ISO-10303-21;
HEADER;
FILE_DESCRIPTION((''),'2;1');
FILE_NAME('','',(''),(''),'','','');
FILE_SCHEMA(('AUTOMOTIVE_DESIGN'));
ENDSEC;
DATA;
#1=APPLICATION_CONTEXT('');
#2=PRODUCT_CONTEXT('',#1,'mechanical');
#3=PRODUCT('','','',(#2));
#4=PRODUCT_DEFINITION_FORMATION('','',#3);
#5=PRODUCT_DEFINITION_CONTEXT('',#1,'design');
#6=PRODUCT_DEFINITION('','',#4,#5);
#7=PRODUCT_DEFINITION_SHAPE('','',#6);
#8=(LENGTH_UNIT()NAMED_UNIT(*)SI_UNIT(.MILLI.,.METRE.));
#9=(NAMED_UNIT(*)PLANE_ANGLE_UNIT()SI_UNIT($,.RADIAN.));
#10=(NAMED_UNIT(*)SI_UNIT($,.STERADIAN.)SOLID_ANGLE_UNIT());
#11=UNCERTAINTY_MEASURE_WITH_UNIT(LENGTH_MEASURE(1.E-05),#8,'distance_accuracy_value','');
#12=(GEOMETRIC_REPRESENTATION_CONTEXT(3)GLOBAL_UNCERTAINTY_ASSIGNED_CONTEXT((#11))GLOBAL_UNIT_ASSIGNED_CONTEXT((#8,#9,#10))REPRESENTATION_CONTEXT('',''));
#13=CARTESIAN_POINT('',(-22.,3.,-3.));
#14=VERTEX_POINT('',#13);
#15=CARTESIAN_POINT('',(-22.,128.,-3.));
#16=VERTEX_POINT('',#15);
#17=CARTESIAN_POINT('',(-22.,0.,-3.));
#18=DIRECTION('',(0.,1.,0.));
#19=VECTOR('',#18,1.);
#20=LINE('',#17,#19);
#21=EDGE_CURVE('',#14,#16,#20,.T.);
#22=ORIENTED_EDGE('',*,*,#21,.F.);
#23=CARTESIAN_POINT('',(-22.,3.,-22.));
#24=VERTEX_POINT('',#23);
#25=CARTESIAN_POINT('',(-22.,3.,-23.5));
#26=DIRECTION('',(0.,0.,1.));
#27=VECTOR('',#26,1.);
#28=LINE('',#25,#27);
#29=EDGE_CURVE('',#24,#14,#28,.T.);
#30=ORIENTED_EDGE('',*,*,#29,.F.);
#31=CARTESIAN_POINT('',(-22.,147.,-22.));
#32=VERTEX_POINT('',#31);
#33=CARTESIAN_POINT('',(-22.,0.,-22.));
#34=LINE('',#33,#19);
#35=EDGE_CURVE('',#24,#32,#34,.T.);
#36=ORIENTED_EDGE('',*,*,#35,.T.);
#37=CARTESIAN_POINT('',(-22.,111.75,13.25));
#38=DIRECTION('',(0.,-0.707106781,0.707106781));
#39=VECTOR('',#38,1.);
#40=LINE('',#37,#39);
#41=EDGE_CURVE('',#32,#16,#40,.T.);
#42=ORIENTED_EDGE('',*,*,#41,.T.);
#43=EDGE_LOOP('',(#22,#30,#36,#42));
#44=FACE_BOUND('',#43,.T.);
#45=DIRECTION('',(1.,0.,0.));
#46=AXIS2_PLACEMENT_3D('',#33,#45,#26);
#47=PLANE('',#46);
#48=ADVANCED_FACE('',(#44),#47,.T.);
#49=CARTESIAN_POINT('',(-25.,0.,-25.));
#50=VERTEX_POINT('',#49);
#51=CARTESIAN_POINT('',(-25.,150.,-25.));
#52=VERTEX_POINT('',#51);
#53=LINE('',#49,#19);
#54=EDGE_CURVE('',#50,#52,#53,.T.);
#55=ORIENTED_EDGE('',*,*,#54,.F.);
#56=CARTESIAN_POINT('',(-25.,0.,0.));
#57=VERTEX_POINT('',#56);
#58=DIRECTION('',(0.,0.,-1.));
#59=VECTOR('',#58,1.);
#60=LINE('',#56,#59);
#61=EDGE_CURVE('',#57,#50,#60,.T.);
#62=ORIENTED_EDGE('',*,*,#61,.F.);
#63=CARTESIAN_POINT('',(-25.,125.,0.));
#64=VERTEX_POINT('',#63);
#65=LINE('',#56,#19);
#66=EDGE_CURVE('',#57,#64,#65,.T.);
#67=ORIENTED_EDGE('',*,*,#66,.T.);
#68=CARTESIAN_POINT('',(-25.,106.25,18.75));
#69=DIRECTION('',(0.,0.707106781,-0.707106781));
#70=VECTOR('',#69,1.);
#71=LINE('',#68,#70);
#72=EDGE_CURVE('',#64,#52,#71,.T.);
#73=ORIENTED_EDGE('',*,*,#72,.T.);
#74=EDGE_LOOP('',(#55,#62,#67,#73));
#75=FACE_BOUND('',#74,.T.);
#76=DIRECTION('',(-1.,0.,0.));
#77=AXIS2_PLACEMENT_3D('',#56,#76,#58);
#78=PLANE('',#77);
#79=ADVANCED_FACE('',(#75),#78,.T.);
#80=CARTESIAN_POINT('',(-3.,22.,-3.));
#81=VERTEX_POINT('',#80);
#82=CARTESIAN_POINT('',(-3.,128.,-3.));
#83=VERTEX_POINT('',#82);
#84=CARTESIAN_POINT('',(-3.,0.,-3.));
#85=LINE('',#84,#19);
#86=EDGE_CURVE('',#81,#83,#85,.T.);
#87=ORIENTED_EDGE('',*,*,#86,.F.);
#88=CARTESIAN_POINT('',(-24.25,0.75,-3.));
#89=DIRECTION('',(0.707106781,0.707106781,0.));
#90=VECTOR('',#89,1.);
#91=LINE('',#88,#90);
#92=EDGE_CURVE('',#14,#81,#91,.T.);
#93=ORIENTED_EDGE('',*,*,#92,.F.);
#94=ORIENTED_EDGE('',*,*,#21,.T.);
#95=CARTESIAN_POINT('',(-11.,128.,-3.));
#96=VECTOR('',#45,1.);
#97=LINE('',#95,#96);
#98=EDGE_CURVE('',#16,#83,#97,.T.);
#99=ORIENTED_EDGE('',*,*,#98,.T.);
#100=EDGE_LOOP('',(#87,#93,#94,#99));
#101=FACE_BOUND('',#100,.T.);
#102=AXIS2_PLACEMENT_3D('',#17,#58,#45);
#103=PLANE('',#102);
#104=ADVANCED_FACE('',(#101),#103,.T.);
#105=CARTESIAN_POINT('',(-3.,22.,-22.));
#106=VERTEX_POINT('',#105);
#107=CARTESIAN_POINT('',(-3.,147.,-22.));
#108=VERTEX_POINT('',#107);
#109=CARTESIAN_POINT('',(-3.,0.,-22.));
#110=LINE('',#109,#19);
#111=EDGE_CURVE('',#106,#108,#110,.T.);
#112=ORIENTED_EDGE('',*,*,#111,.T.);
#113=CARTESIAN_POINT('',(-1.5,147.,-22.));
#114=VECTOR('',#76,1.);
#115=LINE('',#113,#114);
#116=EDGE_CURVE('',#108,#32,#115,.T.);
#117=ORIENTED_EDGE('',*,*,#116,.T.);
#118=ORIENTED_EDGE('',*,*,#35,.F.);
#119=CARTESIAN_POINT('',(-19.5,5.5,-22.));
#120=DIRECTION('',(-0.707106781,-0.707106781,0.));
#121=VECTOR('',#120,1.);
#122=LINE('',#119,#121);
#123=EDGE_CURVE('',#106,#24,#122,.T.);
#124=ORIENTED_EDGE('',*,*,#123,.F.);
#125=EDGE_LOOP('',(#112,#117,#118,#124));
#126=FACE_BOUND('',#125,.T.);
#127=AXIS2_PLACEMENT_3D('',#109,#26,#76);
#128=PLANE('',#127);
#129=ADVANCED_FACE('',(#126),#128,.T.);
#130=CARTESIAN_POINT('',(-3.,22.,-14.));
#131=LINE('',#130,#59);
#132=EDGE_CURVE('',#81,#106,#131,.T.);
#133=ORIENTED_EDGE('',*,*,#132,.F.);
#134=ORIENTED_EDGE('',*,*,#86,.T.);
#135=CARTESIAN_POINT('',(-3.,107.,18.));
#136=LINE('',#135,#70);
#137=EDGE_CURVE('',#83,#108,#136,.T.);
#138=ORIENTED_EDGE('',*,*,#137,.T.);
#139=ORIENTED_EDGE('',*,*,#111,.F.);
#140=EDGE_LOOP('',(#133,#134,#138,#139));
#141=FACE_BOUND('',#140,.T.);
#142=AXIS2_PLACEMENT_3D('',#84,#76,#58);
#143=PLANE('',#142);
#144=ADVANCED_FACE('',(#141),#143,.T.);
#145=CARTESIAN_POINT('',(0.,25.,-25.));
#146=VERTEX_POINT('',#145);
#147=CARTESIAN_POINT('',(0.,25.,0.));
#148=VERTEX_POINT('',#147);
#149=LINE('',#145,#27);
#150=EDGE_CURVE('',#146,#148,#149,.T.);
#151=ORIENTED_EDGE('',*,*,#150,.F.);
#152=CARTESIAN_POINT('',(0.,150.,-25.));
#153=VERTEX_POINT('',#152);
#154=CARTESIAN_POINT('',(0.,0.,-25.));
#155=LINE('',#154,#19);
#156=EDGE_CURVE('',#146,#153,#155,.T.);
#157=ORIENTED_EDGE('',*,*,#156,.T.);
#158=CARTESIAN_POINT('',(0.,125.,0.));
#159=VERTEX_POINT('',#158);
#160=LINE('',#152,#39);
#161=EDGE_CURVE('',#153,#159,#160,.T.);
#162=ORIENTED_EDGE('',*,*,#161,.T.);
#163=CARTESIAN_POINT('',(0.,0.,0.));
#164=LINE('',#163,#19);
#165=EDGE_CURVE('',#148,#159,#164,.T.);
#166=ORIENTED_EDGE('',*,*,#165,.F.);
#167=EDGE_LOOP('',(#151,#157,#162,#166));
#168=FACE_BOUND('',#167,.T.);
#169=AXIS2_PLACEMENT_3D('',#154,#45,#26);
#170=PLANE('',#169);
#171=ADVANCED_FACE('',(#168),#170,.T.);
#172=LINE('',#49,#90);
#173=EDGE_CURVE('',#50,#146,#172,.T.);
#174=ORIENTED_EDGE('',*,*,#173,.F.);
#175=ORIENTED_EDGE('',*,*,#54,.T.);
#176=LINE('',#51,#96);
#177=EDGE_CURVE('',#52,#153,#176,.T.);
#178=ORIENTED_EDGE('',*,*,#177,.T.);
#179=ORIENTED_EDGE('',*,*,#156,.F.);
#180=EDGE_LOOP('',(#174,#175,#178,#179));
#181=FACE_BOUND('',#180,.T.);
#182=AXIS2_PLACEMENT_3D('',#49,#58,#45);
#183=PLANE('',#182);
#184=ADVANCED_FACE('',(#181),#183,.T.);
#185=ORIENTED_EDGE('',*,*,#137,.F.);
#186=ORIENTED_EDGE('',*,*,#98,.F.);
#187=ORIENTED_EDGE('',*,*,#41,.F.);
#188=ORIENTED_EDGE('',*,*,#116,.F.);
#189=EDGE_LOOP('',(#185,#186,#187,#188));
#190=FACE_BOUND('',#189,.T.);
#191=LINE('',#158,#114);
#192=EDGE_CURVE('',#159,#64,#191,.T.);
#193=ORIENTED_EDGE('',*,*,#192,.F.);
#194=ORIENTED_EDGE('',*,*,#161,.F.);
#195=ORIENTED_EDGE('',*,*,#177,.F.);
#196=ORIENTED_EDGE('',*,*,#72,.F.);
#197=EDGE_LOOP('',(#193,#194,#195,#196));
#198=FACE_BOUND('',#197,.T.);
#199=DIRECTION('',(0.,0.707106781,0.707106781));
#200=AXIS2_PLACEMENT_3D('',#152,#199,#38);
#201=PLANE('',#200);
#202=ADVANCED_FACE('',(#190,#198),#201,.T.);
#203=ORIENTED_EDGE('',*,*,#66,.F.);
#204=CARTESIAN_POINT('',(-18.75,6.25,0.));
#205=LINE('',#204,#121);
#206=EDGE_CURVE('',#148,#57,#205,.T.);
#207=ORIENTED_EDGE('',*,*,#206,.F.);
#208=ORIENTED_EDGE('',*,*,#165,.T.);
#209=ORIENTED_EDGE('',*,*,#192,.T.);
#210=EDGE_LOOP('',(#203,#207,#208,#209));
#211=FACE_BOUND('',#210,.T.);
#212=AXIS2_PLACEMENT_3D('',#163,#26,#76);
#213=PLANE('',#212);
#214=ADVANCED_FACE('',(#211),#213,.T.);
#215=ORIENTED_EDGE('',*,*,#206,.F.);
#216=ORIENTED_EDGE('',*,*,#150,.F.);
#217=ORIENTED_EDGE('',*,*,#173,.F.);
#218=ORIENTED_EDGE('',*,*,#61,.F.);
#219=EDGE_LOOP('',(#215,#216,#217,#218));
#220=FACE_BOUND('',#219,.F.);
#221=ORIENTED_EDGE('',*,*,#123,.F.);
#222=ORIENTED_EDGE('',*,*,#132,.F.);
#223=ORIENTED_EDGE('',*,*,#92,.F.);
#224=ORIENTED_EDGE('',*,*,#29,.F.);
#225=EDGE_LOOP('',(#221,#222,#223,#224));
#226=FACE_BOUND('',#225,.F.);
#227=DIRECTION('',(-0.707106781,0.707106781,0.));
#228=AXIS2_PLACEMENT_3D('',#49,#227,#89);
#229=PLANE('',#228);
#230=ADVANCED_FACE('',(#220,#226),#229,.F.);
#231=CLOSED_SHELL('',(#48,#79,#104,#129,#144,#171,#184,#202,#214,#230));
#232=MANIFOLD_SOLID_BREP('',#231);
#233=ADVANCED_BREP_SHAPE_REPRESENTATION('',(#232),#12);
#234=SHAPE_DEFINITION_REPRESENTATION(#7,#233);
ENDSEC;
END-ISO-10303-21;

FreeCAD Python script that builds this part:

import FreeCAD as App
import Part
import Sketcher
Q = App.Units.Quantity


def add_polygon(sketch, points):
    """Adds a closed chain of lines whose ends are joined by coincident constraints."""
    first, n = sketch.GeometryCount, len(points)
    for a, b in zip(points, points[1:] + points[:1]):
        sketch.addGeometry(Part.LineSegment(App.Vector(*a, 0), App.Vector(*b, 0)), False)
    for i in range(n):
        sketch.addConstraint(Sketcher.Constraint("Coincident", first + i, 2, first + (i + 1) % n, 1))

doc = App.newDocument("Part")
params = doc.addObject("Spreadsheet::Sheet", "Params")
for row, (alias, value) in enumerate([
    ("sketch1_width", "25 mm"),
    ("pad1_length", "150 mm"),
    ("sketch2_width", "25 mm"),
    ("pocket1_length", "80 mm"),
    ("sketch3_width", "25 mm"),
    ("pocket2_length", "100 mm"),
], start=1):
    params.set(f"A{row}", alias)
    params.set(f"B{row}", "=" + value)
    params.setAlias(f"B{row}", alias)

body = doc.addObject("PartDesign::Body", "Body")

sketch1 = doc.addObject("Sketcher::SketchObject", "Sketch")
body.addObject(sketch1)
sketch1.AttachmentSupport = (doc.XZ_Plane, [""])
sketch1.MapMode = "FlatFace"
add_polygon(sketch1, [(-25, 0), (0, 0), (0, -25), (-25, -25)])
add_polygon(sketch1, [(-22, -3), (-22, -22), (-3, -22), (-3, -3)])
sketch1.addConstraint([
    Sketcher.Constraint("Horizontal", 0),
    Sketcher.Constraint("Vertical", 1),
    Sketcher.Constraint("Horizontal", 2),
    Sketcher.Constraint("Vertical", 3),
    Sketcher.Constraint("Vertical", 4),
    Sketcher.Constraint("Horizontal", 5),
    Sketcher.Constraint("Vertical", 6),
    Sketcher.Constraint("Horizontal", 7),
    Sketcher.Constraint("Coincident", 0, 2, -1, 1),
    Sketcher.Constraint("Equal", 2, 1),
    Sketcher.Constraint("Equal", 7, 4),
    Sketcher.Constraint("DistanceX", 0, 1, 0, 2, Q("25 mm")),
    Sketcher.Constraint("DistanceX", 5, 2, -1, 1, Q("3 mm")),
    Sketcher.Constraint("DistanceY", 6, 2, -1, 1, Q("3 mm")),
    Sketcher.Constraint("DistanceX", 2, 2, 4, 2, Q("3 mm")),
])
sketch1.setExpression("Constraints[19]", "Params.sketch1_width")
pad1 = doc.addObject("PartDesign::Pad", "Pad")
body.addObject(pad1)
pad1.Profile = sketch1
pad1.setExpression("Length", "Params.pad1_length")
pad1.Reversed = True

sketch2 = doc.addObject("Sketcher::SketchObject", "Sketch001")
body.addObject(sketch2)
sketch2.AttachmentSupport = (doc.YZ_Plane, [""])
sketch2.MapMode = "FlatFace"
add_polygon(sketch2, [(150, 0), (125, 0), (150, -25)])
sketch2.addConstraint([
    Sketcher.Constraint("Horizontal", 0),
    Sketcher.Constraint("Vertical", 2),
    Sketcher.Constraint("PointOnObject", 0, 2, -1),
    Sketcher.Constraint("Equal", 0, 2),
    Sketcher.Constraint("DistanceX", 0, 2, 0, 1, Q("25 mm")),
    Sketcher.Constraint("DistanceX", -1, 1, 0, 2, Q("125 mm")),
])
sketch2.setExpression("Constraints[7]", "Params.sketch2_width")
pocket1 = doc.addObject("PartDesign::Pocket", "Pocket")
body.addObject(pocket1)
pocket1.Profile = sketch2
pocket1.setExpression("Length", "Params.pocket1_length")

sketch3 = doc.addObject("Sketcher::SketchObject", "Sketch002")
body.addObject(sketch3)
sketch3.AttachmentSupport = (doc.XY_Plane, [""])
sketch3.MapMode = "FlatFace"
sketch3.AttachmentOffset = App.Placement(App.Vector(0, 0, -25), App.Rotation())
add_polygon(sketch3, [(0, 0), (-25, 0), (0, 25)])
sketch3.addConstraint([
    Sketcher.Constraint("Horizontal", 0),
    Sketcher.Constraint("Vertical", 2),
    Sketcher.Constraint("Coincident", 2, 2, -1, 1),
    Sketcher.Constraint("Equal", 0, 2),
    Sketcher.Constraint("DistanceX", 0, 2, 0, 1, Q("25 mm")),
])
sketch3.setExpression("Constraints[7]", "Params.sketch3_width")
pocket2 = doc.addObject("PartDesign::Pocket", "Pocket001")
body.addObject(pocket2)
pocket2.Profile = sketch3
pocket2.setExpression("Length", "Params.pocket2_length")
pocket2.Reversed = True

doc.recompute()
